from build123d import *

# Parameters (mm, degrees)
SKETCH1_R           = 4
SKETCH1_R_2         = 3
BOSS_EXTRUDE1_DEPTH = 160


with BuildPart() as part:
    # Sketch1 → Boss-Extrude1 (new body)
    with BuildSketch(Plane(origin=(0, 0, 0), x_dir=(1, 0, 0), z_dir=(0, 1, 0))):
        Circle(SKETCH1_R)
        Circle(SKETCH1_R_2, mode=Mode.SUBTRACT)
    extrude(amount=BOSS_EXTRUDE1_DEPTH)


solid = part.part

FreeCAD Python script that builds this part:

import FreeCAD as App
import Part
import Sketcher
Q = App.Units.Quantity

doc = App.newDocument("Part")
params = doc.addObject("Spreadsheet::Sheet", "Params")
for row, (alias, value) in enumerate([
    ("sketch1_diameter", "8 mm"),
    ("sketch1_diameter2", "6 mm"),
    ("pad1_length", "160 mm"),
], start=1):
    params.set(f"A{row}", alias)
    params.set(f"B{row}", "=" + value)
    params.setAlias(f"B{row}", alias)

body = doc.addObject("PartDesign::Body", "Body")

sketch1 = doc.addObject("Sketcher::SketchObject", "Sketch")
body.addObject(sketch1)
sketch1.AttachmentSupport = (doc.XZ_Plane, [""])
sketch1.MapMode = "FlatFace"
sketch1.addGeometry(Part.Circle(App.Vector(0, 0, 0), App.Vector(0, 0, 1), 4), False)
sketch1.addGeometry(Part.Circle(App.Vector(0, 0, 0), App.Vector(0, 0, 1), 3), False)
sketch1.addConstraint(Sketcher.Constraint("Coincident", 0, 3, -1, 1))
sketch1.addConstraint(Sketcher.Constraint("Coincident", 1, 3, -1, 1))
sketch1.addConstraint(Sketcher.Constraint("Diameter", 0, Q("8 mm")))
sketch1.addConstraint(Sketcher.Constraint("Diameter", 1, Q("6 mm")))
sketch1.setExpression("Constraints[2]", "Params.sketch1_diameter")
sketch1.setExpression("Constraints[3]", "Params.sketch1_diameter2")
pad1 = doc.addObject("PartDesign::Pad", "Pad")
body.addObject(pad1)
pad1.Profile = sketch1
pad1.setExpression("Length", "Params.pad1_length")
pad1.Reversed = True

doc.recompute()
